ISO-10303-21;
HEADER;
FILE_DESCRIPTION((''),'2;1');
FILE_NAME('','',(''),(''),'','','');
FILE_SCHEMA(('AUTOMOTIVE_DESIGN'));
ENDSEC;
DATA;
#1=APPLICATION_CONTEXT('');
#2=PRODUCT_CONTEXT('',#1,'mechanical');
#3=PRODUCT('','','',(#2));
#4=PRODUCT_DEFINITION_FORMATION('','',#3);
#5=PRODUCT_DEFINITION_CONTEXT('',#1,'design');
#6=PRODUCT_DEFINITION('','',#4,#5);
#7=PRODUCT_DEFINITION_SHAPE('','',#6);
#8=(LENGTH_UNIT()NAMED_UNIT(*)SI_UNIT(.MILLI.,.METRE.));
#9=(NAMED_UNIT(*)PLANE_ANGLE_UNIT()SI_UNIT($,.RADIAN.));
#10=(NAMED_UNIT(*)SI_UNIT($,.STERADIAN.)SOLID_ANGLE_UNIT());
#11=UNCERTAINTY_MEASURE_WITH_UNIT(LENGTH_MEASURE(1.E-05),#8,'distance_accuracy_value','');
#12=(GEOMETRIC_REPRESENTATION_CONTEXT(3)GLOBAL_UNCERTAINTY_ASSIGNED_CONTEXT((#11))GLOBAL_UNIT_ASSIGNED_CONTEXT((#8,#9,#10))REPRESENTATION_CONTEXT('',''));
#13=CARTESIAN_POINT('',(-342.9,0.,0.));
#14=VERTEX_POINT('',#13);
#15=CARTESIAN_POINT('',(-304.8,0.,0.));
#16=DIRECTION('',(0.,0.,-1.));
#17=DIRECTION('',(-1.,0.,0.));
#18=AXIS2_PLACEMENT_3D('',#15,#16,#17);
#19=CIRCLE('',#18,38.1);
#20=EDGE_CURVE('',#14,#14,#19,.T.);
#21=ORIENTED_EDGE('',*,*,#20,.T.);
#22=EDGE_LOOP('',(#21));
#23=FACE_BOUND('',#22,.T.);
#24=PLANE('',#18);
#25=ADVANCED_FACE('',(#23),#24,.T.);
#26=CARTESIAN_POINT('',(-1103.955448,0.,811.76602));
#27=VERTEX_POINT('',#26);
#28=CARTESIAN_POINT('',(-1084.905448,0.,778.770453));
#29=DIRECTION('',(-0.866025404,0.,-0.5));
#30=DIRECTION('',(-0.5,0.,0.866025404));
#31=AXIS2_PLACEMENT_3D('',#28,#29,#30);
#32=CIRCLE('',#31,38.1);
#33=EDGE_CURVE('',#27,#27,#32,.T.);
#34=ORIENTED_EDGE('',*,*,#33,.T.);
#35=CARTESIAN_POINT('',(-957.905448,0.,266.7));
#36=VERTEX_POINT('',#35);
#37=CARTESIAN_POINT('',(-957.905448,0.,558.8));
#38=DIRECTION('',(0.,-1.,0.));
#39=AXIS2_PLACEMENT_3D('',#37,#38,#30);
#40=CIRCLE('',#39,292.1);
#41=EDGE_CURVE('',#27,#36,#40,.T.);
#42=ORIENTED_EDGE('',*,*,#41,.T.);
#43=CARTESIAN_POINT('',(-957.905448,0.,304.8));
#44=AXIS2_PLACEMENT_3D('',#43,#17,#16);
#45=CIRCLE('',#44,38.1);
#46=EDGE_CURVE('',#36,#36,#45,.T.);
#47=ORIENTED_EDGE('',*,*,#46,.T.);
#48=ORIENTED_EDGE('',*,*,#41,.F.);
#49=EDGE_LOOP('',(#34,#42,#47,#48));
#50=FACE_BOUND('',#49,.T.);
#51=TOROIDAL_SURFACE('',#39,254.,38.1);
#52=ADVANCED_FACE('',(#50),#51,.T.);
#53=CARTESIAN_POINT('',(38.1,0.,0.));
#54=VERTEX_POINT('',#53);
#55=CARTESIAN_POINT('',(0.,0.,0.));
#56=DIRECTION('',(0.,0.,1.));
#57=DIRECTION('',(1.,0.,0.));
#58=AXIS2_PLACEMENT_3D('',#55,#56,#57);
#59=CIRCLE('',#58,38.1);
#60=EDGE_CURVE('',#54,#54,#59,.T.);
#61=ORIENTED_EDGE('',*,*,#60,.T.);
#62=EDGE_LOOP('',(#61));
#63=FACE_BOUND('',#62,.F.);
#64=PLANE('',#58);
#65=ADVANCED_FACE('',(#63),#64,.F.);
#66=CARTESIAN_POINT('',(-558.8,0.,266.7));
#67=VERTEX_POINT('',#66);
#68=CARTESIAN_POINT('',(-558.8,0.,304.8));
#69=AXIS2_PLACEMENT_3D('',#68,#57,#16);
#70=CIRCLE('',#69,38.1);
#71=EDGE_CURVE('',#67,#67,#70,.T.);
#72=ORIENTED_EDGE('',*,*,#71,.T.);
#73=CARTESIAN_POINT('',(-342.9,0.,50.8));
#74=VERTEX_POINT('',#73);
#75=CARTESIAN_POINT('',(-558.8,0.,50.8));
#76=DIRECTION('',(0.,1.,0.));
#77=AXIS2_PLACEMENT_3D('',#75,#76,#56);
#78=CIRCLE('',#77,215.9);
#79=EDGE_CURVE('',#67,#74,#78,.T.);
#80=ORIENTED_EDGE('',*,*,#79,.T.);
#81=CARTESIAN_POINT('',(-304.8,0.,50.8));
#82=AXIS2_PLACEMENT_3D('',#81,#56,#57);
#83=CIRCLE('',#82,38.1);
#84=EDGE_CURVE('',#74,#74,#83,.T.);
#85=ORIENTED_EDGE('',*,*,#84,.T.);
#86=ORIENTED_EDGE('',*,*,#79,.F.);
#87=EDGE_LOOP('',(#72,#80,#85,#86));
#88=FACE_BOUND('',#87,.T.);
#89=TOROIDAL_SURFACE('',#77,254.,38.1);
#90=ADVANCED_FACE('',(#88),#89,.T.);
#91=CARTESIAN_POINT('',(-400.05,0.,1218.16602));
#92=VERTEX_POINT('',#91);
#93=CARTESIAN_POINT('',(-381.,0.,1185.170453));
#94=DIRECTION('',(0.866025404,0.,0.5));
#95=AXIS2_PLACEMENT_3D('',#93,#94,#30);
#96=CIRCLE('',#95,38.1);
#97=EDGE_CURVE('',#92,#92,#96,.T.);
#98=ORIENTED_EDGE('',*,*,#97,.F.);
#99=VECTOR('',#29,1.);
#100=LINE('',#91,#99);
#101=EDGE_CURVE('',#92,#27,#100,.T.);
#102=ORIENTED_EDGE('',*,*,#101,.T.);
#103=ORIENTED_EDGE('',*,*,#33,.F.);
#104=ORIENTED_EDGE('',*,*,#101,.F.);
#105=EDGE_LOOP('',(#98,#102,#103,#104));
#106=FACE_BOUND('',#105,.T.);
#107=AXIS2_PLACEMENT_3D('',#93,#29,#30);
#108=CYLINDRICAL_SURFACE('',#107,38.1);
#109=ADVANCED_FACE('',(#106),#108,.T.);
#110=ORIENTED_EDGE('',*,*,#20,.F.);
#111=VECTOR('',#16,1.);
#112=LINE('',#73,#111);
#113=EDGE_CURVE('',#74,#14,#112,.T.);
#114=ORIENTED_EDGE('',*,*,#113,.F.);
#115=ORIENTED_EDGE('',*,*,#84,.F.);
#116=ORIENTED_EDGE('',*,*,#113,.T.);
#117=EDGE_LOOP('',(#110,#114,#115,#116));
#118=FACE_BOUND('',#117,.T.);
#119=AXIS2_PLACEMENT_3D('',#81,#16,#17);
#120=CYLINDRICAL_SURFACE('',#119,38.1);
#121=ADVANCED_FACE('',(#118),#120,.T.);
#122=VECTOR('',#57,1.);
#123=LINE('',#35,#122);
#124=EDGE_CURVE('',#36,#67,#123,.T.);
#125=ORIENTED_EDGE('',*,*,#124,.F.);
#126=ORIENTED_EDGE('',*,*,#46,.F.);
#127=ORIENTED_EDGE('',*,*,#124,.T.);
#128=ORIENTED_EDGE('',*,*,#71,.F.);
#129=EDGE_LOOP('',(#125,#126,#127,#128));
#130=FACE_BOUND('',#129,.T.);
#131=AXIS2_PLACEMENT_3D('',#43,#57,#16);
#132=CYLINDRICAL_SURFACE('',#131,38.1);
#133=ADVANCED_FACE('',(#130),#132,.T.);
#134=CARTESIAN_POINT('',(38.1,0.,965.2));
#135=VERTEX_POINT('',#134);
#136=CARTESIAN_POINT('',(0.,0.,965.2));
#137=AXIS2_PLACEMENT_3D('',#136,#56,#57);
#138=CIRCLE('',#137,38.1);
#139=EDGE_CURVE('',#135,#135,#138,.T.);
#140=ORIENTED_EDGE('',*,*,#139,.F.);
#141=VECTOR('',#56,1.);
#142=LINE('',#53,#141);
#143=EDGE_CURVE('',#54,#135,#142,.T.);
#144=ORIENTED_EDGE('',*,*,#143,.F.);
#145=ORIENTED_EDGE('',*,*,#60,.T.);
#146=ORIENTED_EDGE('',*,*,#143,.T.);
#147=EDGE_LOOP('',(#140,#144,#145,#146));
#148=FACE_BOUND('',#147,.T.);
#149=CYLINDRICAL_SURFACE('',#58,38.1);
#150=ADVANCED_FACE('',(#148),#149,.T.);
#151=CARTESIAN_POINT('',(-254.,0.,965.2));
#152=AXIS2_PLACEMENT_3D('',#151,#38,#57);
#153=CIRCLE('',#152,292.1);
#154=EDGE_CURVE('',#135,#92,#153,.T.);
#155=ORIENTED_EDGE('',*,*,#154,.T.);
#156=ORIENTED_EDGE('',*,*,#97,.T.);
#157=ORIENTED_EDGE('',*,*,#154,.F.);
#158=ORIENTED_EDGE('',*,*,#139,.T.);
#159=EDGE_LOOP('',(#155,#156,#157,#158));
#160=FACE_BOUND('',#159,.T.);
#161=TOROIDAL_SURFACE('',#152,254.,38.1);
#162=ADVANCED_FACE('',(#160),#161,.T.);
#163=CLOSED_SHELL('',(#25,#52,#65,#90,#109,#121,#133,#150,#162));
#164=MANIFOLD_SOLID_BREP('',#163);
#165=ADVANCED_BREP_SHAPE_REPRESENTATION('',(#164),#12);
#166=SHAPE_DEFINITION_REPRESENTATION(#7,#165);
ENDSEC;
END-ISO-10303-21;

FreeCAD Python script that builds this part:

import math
import FreeCAD as App
import Part
import Sketcher
from FreeCAD import Vector
Q = App.Units.Quantity

doc = App.newDocument("Part")
body = doc.addObject("PartDesign::Body", "Body")

sketch1 = body.newObject("Sketcher::SketchObject", "Sketch")
sketch1.AttachmentSupport = (doc.getObject("XY_Plane"), [""])
sketch1.MapMode = "FlatFace"
sketch1.addGeometry(Part.Circle(Vector(0, 0, 0), Vector(0, 0, 1), 38), False)
sketch1.addConstraint(Sketcher.Constraint("Coincident", 0, 3, -1, 1))
sketch1.addConstraint(Sketcher.Constraint("Diameter", 0, Q("3 in")))

sketch2 = body.newObject("Sketcher::SketchObject", "Sketch001")
sketch2.AttachmentSupport = (doc.getObject("XZ_Plane"), [""])
sketch2.MapMode = "FlatFace"
sketch2.addGeometry(Part.LineSegment(Vector(0, 0, 0), Vector(0, 965, 0)), False)
sketch2.addGeometry(Part.ArcOfCircle(Part.Circle(Vector(-254, 965, 0), Vector(0, 0, 1), 254), math.radians(0), math.radians(120)), False)
sketch2.addGeometry(Part.LineSegment(Vector(-381, 1185, 0), Vector(-1085, 779, 0)), False)
sketch2.addGeometry(Part.ArcOfCircle(Part.Circle(Vector(-958, 559, 0), Vector(0, 0, 1), 254), math.radians(120), math.radians(270)), False)
sketch2.addGeometry(Part.LineSegment(Vector(-958, 305, 0), Vector(-559, 305, 0)), False)
sketch2.addGeometry(Part.ArcOfCircle(Part.Circle(Vector(-559, 51, 0), Vector(0, 0, 1), 254), math.radians(0), math.radians(90)), False)
sketch2.addGeometry(Part.LineSegment(Vector(-305, 51, 0), Vector(-305, 0, 0)), False)
sketch2.addConstraint(Sketcher.Constraint("Tangent", 0, 2, 1, 1))
sketch2.addConstraint(Sketcher.Constraint("Tangent", 1, 2, 2, 1))
sketch2.addConstraint(Sketcher.Constraint("Tangent", 2, 2, 3, 1))
sketch2.addConstraint(Sketcher.Constraint("Tangent", 3, 2, 4, 1))
sketch2.addConstraint(Sketcher.Constraint("Tangent", 4, 2, 5, 2))
sketch2.addConstraint(Sketcher.Constraint("Tangent", 5, 1, 6, 1))
sketch2.addConstraint(Sketcher.Constraint("Vertical", 0))
sketch2.addConstraint(Sketcher.Constraint("Horizontal", 4))
sketch2.addConstraint(Sketcher.Constraint("Vertical", 6))
sketch2.addConstraint(Sketcher.Constraint("Coincident", 0, 1, -1, 1))
sketch2.addConstraint(Sketcher.Constraint("Equal", 1, 3))
sketch2.addConstraint(Sketcher.Constraint("Equal", 3, 5))
sketch2.addConstraint(Sketcher.Constraint("PointOnObject", 6, 2, -1))
sketch2.addConstraint(Sketcher.Constraint("Radius", 1, Q("10 in")))
sketch2.addConstraint(Sketcher.Constraint("DistanceY", 0, 1, 0, 2, Q("38 in")))
sketch2.addConstraint(Sketcher.Constraint("DistanceY", 6, 2, 6, 1, Q("2 in")))
sketch2.addConstraint(Sketcher.Constraint("Distance", 2, Q("32 in")))
sketch2.addConstraint(Sketcher.Constraint("DistanceX", 5, 3, -1, 1, Q("22 in")))
doc.recompute()

additivepipe = body.newObject("PartDesign::AdditivePipe", "AdditivePipe")
additivepipe.Profile = sketch1
additivepipe.Spine = (sketch2, ["Edge1", "Edge2", "Edge3", "Edge4", "Edge5", "Edge6", "Edge7"])

doc.recompute()
